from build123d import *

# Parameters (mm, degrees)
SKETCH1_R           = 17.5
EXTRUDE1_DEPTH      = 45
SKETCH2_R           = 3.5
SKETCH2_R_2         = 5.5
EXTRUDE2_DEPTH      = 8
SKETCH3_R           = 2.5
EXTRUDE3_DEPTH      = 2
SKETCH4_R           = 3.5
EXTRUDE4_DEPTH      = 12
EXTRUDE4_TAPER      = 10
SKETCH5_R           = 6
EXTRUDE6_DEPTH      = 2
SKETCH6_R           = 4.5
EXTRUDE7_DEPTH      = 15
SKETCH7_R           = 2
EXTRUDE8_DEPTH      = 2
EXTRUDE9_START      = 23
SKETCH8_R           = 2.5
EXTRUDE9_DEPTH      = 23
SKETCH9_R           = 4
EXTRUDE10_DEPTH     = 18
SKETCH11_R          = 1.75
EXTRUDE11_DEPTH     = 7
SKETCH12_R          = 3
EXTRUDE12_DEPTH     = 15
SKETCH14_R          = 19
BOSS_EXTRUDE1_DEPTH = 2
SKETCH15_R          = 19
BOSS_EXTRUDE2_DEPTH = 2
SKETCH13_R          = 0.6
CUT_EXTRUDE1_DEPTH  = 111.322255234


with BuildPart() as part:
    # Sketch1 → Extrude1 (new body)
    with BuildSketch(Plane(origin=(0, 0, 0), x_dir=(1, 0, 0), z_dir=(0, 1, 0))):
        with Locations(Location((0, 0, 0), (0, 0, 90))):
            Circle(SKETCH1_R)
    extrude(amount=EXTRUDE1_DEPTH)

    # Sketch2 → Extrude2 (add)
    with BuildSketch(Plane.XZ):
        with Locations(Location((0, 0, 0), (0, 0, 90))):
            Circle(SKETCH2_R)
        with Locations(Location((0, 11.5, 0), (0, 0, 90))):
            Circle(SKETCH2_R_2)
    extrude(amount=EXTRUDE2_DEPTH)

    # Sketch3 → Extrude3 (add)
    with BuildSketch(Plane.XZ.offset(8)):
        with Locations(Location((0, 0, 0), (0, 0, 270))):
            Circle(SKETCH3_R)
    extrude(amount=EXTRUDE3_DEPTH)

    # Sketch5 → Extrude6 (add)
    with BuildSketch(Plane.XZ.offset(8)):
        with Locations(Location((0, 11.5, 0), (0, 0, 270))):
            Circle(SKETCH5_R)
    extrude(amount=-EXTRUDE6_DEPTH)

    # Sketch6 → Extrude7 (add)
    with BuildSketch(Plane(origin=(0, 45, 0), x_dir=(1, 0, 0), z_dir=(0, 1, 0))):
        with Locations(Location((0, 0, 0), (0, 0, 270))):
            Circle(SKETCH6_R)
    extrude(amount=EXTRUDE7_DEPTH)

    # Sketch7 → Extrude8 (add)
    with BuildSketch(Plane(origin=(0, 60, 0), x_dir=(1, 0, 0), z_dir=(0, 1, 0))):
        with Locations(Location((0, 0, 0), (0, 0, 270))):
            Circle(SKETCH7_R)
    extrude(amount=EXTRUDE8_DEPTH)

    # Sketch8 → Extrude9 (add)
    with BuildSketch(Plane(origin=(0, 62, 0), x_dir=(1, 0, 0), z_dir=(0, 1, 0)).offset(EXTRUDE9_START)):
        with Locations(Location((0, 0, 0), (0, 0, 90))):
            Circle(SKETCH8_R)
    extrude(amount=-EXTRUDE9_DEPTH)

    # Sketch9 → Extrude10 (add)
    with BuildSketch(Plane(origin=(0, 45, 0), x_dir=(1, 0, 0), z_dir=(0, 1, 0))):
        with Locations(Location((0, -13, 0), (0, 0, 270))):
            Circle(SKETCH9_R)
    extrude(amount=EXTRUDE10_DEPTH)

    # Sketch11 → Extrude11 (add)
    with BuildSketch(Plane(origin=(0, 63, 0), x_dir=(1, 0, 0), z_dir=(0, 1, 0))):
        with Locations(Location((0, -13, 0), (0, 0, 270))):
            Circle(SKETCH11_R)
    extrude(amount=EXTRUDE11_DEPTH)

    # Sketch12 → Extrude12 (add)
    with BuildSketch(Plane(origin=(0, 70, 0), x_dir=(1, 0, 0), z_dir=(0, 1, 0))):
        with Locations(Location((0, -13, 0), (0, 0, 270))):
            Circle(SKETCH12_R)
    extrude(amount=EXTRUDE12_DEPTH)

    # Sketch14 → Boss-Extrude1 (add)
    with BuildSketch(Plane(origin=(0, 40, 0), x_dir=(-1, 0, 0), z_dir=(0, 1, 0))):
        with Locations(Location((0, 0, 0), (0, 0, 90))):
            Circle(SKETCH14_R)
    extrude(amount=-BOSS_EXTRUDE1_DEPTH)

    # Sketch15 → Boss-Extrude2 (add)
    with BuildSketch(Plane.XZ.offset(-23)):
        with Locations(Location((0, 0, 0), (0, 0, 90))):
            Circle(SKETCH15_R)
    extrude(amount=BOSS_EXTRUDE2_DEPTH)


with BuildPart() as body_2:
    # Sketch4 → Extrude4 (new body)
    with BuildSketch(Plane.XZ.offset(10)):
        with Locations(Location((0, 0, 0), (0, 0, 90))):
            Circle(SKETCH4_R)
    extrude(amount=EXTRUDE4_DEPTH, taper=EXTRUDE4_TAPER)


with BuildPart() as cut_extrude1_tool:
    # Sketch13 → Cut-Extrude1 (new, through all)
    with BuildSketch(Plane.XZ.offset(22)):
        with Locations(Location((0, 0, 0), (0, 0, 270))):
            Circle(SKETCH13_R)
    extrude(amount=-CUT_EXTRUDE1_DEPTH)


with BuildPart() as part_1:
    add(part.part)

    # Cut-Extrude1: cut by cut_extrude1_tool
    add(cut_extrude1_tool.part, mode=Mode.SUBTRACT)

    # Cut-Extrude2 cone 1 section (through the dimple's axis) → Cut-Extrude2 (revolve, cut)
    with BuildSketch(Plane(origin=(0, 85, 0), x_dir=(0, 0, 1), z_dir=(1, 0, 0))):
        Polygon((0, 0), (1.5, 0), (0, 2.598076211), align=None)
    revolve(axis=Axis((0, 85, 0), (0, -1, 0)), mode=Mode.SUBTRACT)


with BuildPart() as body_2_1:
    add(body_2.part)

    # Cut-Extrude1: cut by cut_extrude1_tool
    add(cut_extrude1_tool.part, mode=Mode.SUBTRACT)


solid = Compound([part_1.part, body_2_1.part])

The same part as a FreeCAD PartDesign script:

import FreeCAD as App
import Part
import Sketcher
from FreeCAD import Vector
Q = App.Units.Quantity


def add_polygon(sketch, points):
    """Adds a closed chain of lines whose ends are joined by coincident constraints."""
    first, n = sketch.GeometryCount, len(points)
    for a, b in zip(points, points[1:] + points[:1]):
        sketch.addGeometry(Part.LineSegment(App.Vector(*a, 0), App.Vector(*b, 0)), False)
    for i in range(n):
        sketch.addConstraint(Sketcher.Constraint("Coincident", first + i, 2, first + (i + 1) % n, 1))

doc = App.newDocument("Part")
body = doc.addObject("PartDesign::Body", "Body")

sketch1 = body.newObject("Sketcher::SketchObject", "Sketch")
sketch1.AttachmentSupport = (doc.getObject("XZ_Plane"), [""])
sketch1.MapMode = "FlatFace"
sketch1.addGeometry(Part.Circle(Vector(0, 0, 0), Vector(0, 0, 1), 17.5), False)
sketch1.addConstraint(Sketcher.Constraint("Coincident", 0, 3, -1, 1))
sketch1.addConstraint(Sketcher.Constraint("Diameter", 0, Q("35 mm")))
pad1 = body.newObject("PartDesign::Pad", "Pad")
pad1.Profile = sketch1
pad1.Length = 45
pad1.Reversed = True

sketch2 = body.newObject("Sketcher::SketchObject", "Sketch001")
sketch2.AttachmentSupport = (doc.getObject("XZ_Plane"), [""])
sketch2.MapMode = "FlatFace"
sketch2.addGeometry(Part.Circle(Vector(0, 0, 0), Vector(0, 0, 1), 3.5), False)
sketch2.addGeometry(Part.Circle(Vector(0, 11.5, 0), Vector(0, 0, 1), 5.5), False)
sketch2.addConstraint(Sketcher.Constraint("Coincident", 0, 3, -1, 1))
sketch2.addConstraint(Sketcher.Constraint("PointOnObject", 1, 3, -2))
sketch2.addConstraint(Sketcher.Constraint("Diameter", 0, Q("7 mm")))
sketch2.addConstraint(Sketcher.Constraint("Diameter", 1, Q("11 mm")))
sketch2.addConstraint(Sketcher.Constraint("DistanceY", -1, 1, 1, 3, Q("11.5 mm")))
pad2 = body.newObject("PartDesign::Pad", "Pad001")
pad2.Profile = sketch2
pad2.Length = 8

sketch3 = body.newObject("Sketcher::SketchObject", "Sketch002")
sketch3.AttachmentSupport = (doc.getObject("XZ_Plane"), [""])
sketch3.MapMode = "FlatFace"
sketch3.AttachmentOffset = App.Placement(Vector(0, 0, 8), App.Rotation())
sketch3.addGeometry(Part.Circle(Vector(0, 0, 0), Vector(0, 0, 1), 2.5), False)
sketch3.addConstraint(Sketcher.Constraint("Coincident", 0, 3, -1, 1))
sketch3.addConstraint(Sketcher.Constraint("Diameter", 0, Q("5 mm")))
pad3 = body.newObject("PartDesign::Pad", "Pad002")
pad3.Profile = sketch3
pad3.Length = 2

sketch4 = body.newObject("Sketcher::SketchObject", "Sketch003")
sketch4.AttachmentSupport = (doc.getObject("XZ_Plane"), [""])
sketch4.MapMode = "FlatFace"
sketch4.AttachmentOffset = App.Placement(Vector(0, 0, 8), App.Rotation())
sketch4.addGeometry(Part.Circle(Vector(0, 11.5, 0), Vector(0, 0, 1), 6), False)
sketch4.addConstraint(Sketcher.Constraint("PointOnObject", 0, 3, -2))
sketch4.addConstraint(Sketcher.Constraint("Diameter", 0, Q("12 mm")))
sketch4.addConstraint(Sketcher.Constraint("DistanceY", -1, 1, 0, 3, Q("11.5 mm")))
pad4 = body.newObject("PartDesign::Pad", "Pad003")
pad4.Profile = sketch4
pad4.Length = 2
pad4.Reversed = True

sketch5 = body.newObject("Sketcher::SketchObject", "Sketch004")
sketch5.AttachmentSupport = (doc.getObject("XZ_Plane"), [""])
sketch5.MapMode = "FlatFace"
sketch5.AttachmentOffset = App.Placement(Vector(0, 0, -45), App.Rotation())
sketch5.addGeometry(Part.Circle(Vector(0, 0, 0), Vector(0, 0, 1), 4.5), False)
sketch5.addConstraint(Sketcher.Constraint("Coincident", 0, 3, -1, 1))
sketch5.addConstraint(Sketcher.Constraint("Diameter", 0, Q("9 mm")))
pad5 = body.newObject("PartDesign::Pad", "Pad004")
pad5.Profile = sketch5
pad5.Length = 15
pad5.Reversed = True

sketch6 = body.newObject("Sketcher::SketchObject", "Sketch005")
sketch6.AttachmentSupport = (doc.getObject("XZ_Plane"), [""])
sketch6.MapMode = "FlatFace"
sketch6.AttachmentOffset = App.Placement(Vector(0, 0, -60), App.Rotation())
sketch6.addGeometry(Part.Circle(Vector(0, 0, 0), Vector(0, 0, 1), 2), False)
sketch6.addConstraint(Sketcher.Constraint("Coincident", 0, 3, -1, 1))
sketch6.addConstraint(Sketcher.Constraint("Diameter", 0, Q("4 mm")))
pad6 = body.newObject("PartDesign::Pad", "Pad005")
pad6.Profile = sketch6
pad6.Length = 2
pad6.Reversed = True

sketch7 = body.newObject("Sketcher::SketchObject", "Sketch006")
sketch7.AttachmentSupport = (doc.getObject("XZ_Plane"), [""])
sketch7.MapMode = "FlatFace"
sketch7.AttachmentOffset = App.Placement(Vector(0, 0, -85), App.Rotation())
sketch7.addGeometry(Part.Circle(Vector(0, 0, 0), Vector(0, 0, 1), 2.5), False)
sketch7.addConstraint(Sketcher.Constraint("Coincident", 0, 3, -1, 1))
sketch7.addConstraint(Sketcher.Constraint("Diameter", 0, Q("5 mm")))
pad7 = body.newObject("PartDesign::Pad", "Pad006")
pad7.Profile = sketch7
pad7.Length = 23

sketch8 = body.newObject("Sketcher::SketchObject", "Sketch007")
sketch8.AttachmentSupport = (doc.getObject("XZ_Plane"), [""])
sketch8.MapMode = "FlatFace"
sketch8.AttachmentOffset = App.Placement(Vector(0, 0, -45), App.Rotation())
sketch8.addGeometry(Part.Circle(Vector(0, 13, 0), Vector(0, 0, 1), 4), False)
sketch8.addConstraint(Sketcher.Constraint("PointOnObject", 0, 3, -2))
sketch8.addConstraint(Sketcher.Constraint("Diameter", 0, Q("8 mm")))
sketch8.addConstraint(Sketcher.Constraint("DistanceY", -1, 1, 0, 3, Q("13 mm")))
pad8 = body.newObject("PartDesign::Pad", "Pad007")
pad8.Profile = sketch8
pad8.Length = 18
pad8.Reversed = True

sketch9 = body.newObject("Sketcher::SketchObject", "Sketch008")
sketch9.AttachmentSupport = (doc.getObject("XZ_Plane"), [""])
sketch9.MapMode = "FlatFace"
sketch9.AttachmentOffset = App.Placement(Vector(0, 0, -63), App.Rotation())
sketch9.addGeometry(Part.Circle(Vector(0, 13, 0), Vector(0, 0, 1), 1.75), False)
sketch9.addConstraint(Sketcher.Constraint("PointOnObject", 0, 3, -2))
sketch9.addConstraint(Sketcher.Constraint("Diameter", 0, Q("3.5 mm")))
sketch9.addConstraint(Sketcher.Constraint("DistanceY", -1, 1, 0, 3, Q("13 mm")))
pad9 = body.newObject("PartDesign::Pad", "Pad008")
pad9.Profile = sketch9
pad9.Length = 7
pad9.Reversed = True

sketch10 = body.newObject("Sketcher::SketchObject", "Sketch009")
sketch10.AttachmentSupport = (doc.getObject("XZ_Plane"), [""])
sketch10.MapMode = "FlatFace"
sketch10.AttachmentOffset = App.Placement(Vector(0, 0, -70), App.Rotation())
sketch10.addGeometry(Part.Circle(Vector(0, 13, 0), Vector(0, 0, 1), 3), False)
sketch10.addConstraint(Sketcher.Constraint("PointOnObject", 0, 3, -2))
sketch10.addConstraint(Sketcher.Constraint("Diameter", 0, Q("6 mm")))
sketch10.addConstraint(Sketcher.Constraint("DistanceY", -1, 1, 0, 3, Q("13 mm")))
pad10 = body.newObject("PartDesign::Pad", "Pad009")
pad10.Profile = sketch10
pad10.Length = 15
pad10.Reversed = True

sketch11 = body.newObject("Sketcher::SketchObject", "Sketch010")
sketch11.AttachmentSupport = (doc.getObject("XZ_Plane"), [""])
sketch11.MapMode = "FlatFace"
sketch11.AttachmentOffset = App.Placement(Vector(0, 0, -40), App.Rotation())
sketch11.addGeometry(Part.Circle(Vector(0, 0, 0), Vector(0, 0, 1), 19), False)
sketch11.addConstraint(Sketcher.Constraint("Coincident", 0, 3, -1, 1))
sketch11.addConstraint(Sketcher.Constraint("Diameter", 0, Q("38 mm")))
pad11 = body.newObject("PartDesign::Pad", "Pad010")
pad11.Profile = sketch11
pad11.Length = 2

sketch12 = body.newObject("Sketcher::SketchObject", "Sketch011")
sketch12.AttachmentSupport = (doc.getObject("XZ_Plane"), [""])
sketch12.MapMode = "FlatFace"
sketch12.AttachmentOffset = App.Placement(Vector(0, 0, -23), App.Rotation())
sketch12.addGeometry(Part.Circle(Vector(0, 0, 0), Vector(0, 0, 1), 19), False)
sketch12.addConstraint(Sketcher.Constraint("Coincident", 0, 3, -1, 1))
sketch12.addConstraint(Sketcher.Constraint("Diameter", 0, Q("38 mm")))
pad12 = body.newObject("PartDesign::Pad", "Pad011")
pad12.Profile = sketch12
pad12.Length = 2
body2 = doc.addObject("PartDesign::Body", "Body001")

sketch13 = body2.newObject("Sketcher::SketchObject", "Sketch012")
sketch13.AttachmentSupport = (doc.getObject("XZ_Plane001"), [""])
sketch13.MapMode = "FlatFace"
sketch13.AttachmentOffset = App.Placement(Vector(0, 0, 10), App.Rotation())
sketch13.addGeometry(Part.Circle(Vector(0, 0, 0), Vector(0, 0, 1), 3.5), False)
sketch13.addConstraint(Sketcher.Constraint("Coincident", 0, 3, -1, 1))
sketch13.addConstraint(Sketcher.Constraint("Diameter", 0, Q("7 mm")))
pad13 = body2.newObject("PartDesign::Pad", "Pad012")
pad13.Profile = sketch13
pad13.Length = 12
pad13.TaperAngle = -10
body3 = doc.addObject("PartDesign::Body", "Body002")

sketch14 = body3.newObject("Sketcher::SketchObject", "Sketch013")
sketch14.AttachmentSupport = (doc.getObject("XZ_Plane002"), [""])
sketch14.MapMode = "FlatFace"
sketch14.AttachmentOffset = App.Placement(Vector(0, 0, 22), App.Rotation())
sketch14.addGeometry(Part.Circle(Vector(0, 0, 0), Vector(0, 0, 1), 0.6), False)
sketch14.addConstraint(Sketcher.Constraint("Coincident", 0, 3, -1, 1))
sketch14.addConstraint(Sketcher.Constraint("Diameter", 0, Q("1.2 mm")))
pad14 = body3.newObject("PartDesign::Pad", "Pad013")
pad14.Profile = sketch14
pad14.Length = 111.322255
pad14.Reversed = True
doc.recompute()

body4 = doc.addObject("PartDesign::Body", "Body003")
body4.BaseFeature = body3
boolean = body.newObject("PartDesign::Boolean", "Boolean")
boolean.Type = "Cut"
boolean.addObjects([body4])
doc.recompute()

sketch15 = body.newObject("Sketcher::SketchObject", "Sketch014")
sketch15.AttachmentSupport = (doc.getObject("YZ_Plane"), [""])
sketch15.MapMode = "FlatFace"
add_polygon(sketch15, [(85, 0), (85, 1.5), (82.401924, 0)])
sketch15.addConstraint(Sketcher.Constraint("Vertical", 0))
sketch15.addConstraint(Sketcher.Constraint("Horizontal", 2))
sketch15.addConstraint(Sketcher.Constraint("PointOnObject", 1, 2, -1))
sketch15.addConstraint(Sketcher.Constraint("Angle", 1, Q("-150 deg")))
sketch15.addConstraint(Sketcher.Constraint("Distance", 1, Q("3 mm")))
sketch15.addConstraint(Sketcher.Constraint("DistanceX", -1, 1, 0, 2, Q("85 mm")))
groove = body.newObject("PartDesign::Groove", "Groove")
groove.Profile = sketch15
groove.ReferenceAxis = (sketch15, ["H_Axis"])
groove.Angle = 360
doc.recompute()

boolean2 = body2.newObject("PartDesign::Boolean", "Boolean001")
boolean2.Type = "Cut"
boolean2.addObjects([body3])

doc.recompute()
